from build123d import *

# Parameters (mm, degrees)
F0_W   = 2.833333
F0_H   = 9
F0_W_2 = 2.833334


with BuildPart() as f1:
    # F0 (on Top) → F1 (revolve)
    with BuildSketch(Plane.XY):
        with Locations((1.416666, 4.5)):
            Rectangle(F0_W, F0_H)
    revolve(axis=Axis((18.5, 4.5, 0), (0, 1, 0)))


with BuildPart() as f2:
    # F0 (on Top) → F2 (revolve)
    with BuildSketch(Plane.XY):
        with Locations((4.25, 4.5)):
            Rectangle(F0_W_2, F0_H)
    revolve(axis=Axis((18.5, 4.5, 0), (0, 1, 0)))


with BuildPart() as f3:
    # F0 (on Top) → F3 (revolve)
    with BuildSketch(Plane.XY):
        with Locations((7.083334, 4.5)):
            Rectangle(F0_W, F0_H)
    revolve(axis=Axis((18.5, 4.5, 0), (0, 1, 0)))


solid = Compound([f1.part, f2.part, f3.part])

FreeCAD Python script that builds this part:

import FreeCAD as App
import Part
import Sketcher

doc = App.newDocument("Part")
body = doc.addObject("PartDesign::Body", "Body")

sketch1 = doc.addObject("Sketcher::SketchObject", "Sketch")
body.addObject(sketch1)
sketch1.AttachmentSupport = (doc.XY_Plane, [""])
sketch1.MapMode = "FlatFace"
sketch1.addGeometry(Part.LineSegment(App.Vector(0, 9, 0), App.Vector(0, 0, 0)), False)
sketch1.addGeometry(Part.LineSegment(App.Vector(0, 0, 0), App.Vector(2.833333, 0, 0)), False)
sketch1.addGeometry(Part.LineSegment(App.Vector(2.833333, 0, 0), App.Vector(2.833333, 9, 0)), False)
sketch1.addGeometry(Part.LineSegment(App.Vector(2.833333, 9, 0), App.Vector(0, 9, 0)), False)
sketch1.addGeometry(Part.LineSegment(App.Vector(18.5, 0, 0), App.Vector(18.5, 9, 0)), True)
sketch1.addConstraint(Sketcher.Constraint("Coincident", 0, 2, 1, 1))
sketch1.addConstraint(Sketcher.Constraint("Coincident", 1, 2, 2, 1))
sketch1.addConstraint(Sketcher.Constraint("Coincident", 2, 2, 3, 1))
sketch1.addConstraint(Sketcher.Constraint("Coincident", 3, 2, 0, 1))
sketch1.addConstraint(Sketcher.Constraint("Vertical", 0))
sketch1.addConstraint(Sketcher.Constraint("Horizontal", 1))
sketch1.addConstraint(Sketcher.Constraint("Vertical", 2))
sketch1.addConstraint(Sketcher.Constraint("Horizontal", 3))
sketch1.addConstraint(Sketcher.Constraint("Vertical", 4))
sketch1.addConstraint(Sketcher.Constraint("Coincident", 0, 2, -1, 1))
sketch1.addConstraint(Sketcher.Constraint("PointOnObject", 4, 1, -1))
sketch1.addConstraint(Sketcher.Constraint("Horizontal", 3, 2, 4, 2))
sketch1.addConstraint(Sketcher.Constraint("DistanceY", 0, 2, 0, 1, 9.0))
sketch1.addConstraint(Sketcher.Constraint("DistanceX", -1, 1, 4, 1, 18.5))
sketch1.addConstraint(Sketcher.Constraint("DistanceX", 1, 1, 1, 2, 2.833333))
revolution = doc.addObject("PartDesign::Revolution", "Revolution")
body.addObject(revolution)
revolution.Profile = sketch1
revolution.ReferenceAxis = (sketch1, ["Axis0"])
revolution.Angle = 360
body2 = doc.addObject("PartDesign::Body", "Body001")

sketch2 = doc.addObject("Sketcher::SketchObject", "Sketch001")
body2.addObject(sketch2)
sketch2.AttachmentSupport = (doc.getObject("XY_Plane001"), [""])
sketch2.MapMode = "FlatFace"
sketch2.addGeometry(Part.LineSegment(App.Vector(2.833333, 9, 0), App.Vector(2.833333, 0, 0)), False)
sketch2.addGeometry(Part.LineSegment(App.Vector(2.833333, 0, 0), App.Vector(5.666667, 0, 0)), False)
sketch2.addGeometry(Part.LineSegment(App.Vector(5.666667, 0, 0), App.Vector(5.666667, 9, 0)), False)
sketch2.addGeometry(Part.LineSegment(App.Vector(5.666667, 9, 0), App.Vector(2.833333, 9, 0)), False)
sketch2.addGeometry(Part.LineSegment(App.Vector(18.5, 0, 0), App.Vector(18.5, 9, 0)), True)
sketch2.addConstraint(Sketcher.Constraint("Coincident", 0, 2, 1, 1))
sketch2.addConstraint(Sketcher.Constraint("Coincident", 1, 2, 2, 1))
sketch2.addConstraint(Sketcher.Constraint("Coincident", 2, 2, 3, 1))
sketch2.addConstraint(Sketcher.Constraint("Coincident", 3, 2, 0, 1))
sketch2.addConstraint(Sketcher.Constraint("Vertical", 0))
sketch2.addConstraint(Sketcher.Constraint("Horizontal", 1))
sketch2.addConstraint(Sketcher.Constraint("Vertical", 2))
sketch2.addConstraint(Sketcher.Constraint("Horizontal", 3))
sketch2.addConstraint(Sketcher.Constraint("Vertical", 4))
sketch2.addConstraint(Sketcher.Constraint("PointOnObject", 0, 2, -1))
sketch2.addConstraint(Sketcher.Constraint("PointOnObject", 4, 1, -1))
sketch2.addConstraint(Sketcher.Constraint("Horizontal", 3, 2, 4, 2))
sketch2.addConstraint(Sketcher.Constraint("DistanceY", 0, 2, 0, 1, 9.0))
sketch2.addConstraint(Sketcher.Constraint("DistanceX", -1, 1, 4, 1, 18.5))
sketch2.addConstraint(Sketcher.Constraint("DistanceX", 1, 1, 1, 2, 2.833334))
sketch2.addConstraint(Sketcher.Constraint("DistanceX", -1, 1, 0, 2, 2.833333))
revolution2 = doc.addObject("PartDesign::Revolution", "Revolution001")
body2.addObject(revolution2)
revolution2.Profile = sketch2
revolution2.ReferenceAxis = (sketch2, ["Axis0"])
revolution2.Angle = 360
body3 = doc.addObject("PartDesign::Body", "Body002")

sketch3 = doc.addObject("Sketcher::SketchObject", "Sketch002")
body3.addObject(sketch3)
sketch3.AttachmentSupport = (doc.getObject("XY_Plane002"), [""])
sketch3.MapMode = "FlatFace"
sketch3.addGeometry(Part.LineSegment(App.Vector(5.666667, 9, 0), App.Vector(5.666667, 0, 0)), False)
sketch3.addGeometry(Part.LineSegment(App.Vector(5.666667, 0, 0), App.Vector(8.500001, 0, 0)), False)
sketch3.addGeometry(Part.LineSegment(App.Vector(8.500001, 0, 0), App.Vector(8.500001, 9, 0)), False)
sketch3.addGeometry(Part.LineSegment(App.Vector(8.500001, 9, 0), App.Vector(5.666667, 9, 0)), False)
sketch3.addGeometry(Part.LineSegment(App.Vector(18.5, 0, 0), App.Vector(18.5, 9, 0)), True)
sketch3.addConstraint(Sketcher.Constraint("Coincident", 0, 2, 1, 1))
sketch3.addConstraint(Sketcher.Constraint("Coincident", 1, 2, 2, 1))
sketch3.addConstraint(Sketcher.Constraint("Coincident", 2, 2, 3, 1))
sketch3.addConstraint(Sketcher.Constraint("Coincident", 3, 2, 0, 1))
sketch3.addConstraint(Sketcher.Constraint("Vertical", 0))
sketch3.addConstraint(Sketcher.Constraint("Horizontal", 1))
sketch3.addConstraint(Sketcher.Constraint("Vertical", 2))
sketch3.addConstraint(Sketcher.Constraint("Horizontal", 3))
sketch3.addConstraint(Sketcher.Constraint("Vertical", 4))
sketch3.addConstraint(Sketcher.Constraint("PointOnObject", 0, 2, -1))
sketch3.addConstraint(Sketcher.Constraint("PointOnObject", 4, 1, -1))
sketch3.addConstraint(Sketcher.Constraint("Horizontal", 3, 2, 4, 2))
sketch3.addConstraint(Sketcher.Constraint("DistanceY", 0, 2, 0, 1, 9.0))
sketch3.addConstraint(Sketcher.Constraint("DistanceX", 1, 2, 4, 1, 9.999999))
sketch3.addConstraint(Sketcher.Constraint("DistanceX", -1, 1, 1, 2, 8.500001))
sketch3.addConstraint(Sketcher.Constraint("DistanceX", 1, 1, 1, 2, 2.833333))
revolution3 = doc.addObject("PartDesign::Revolution", "Revolution002")
body3.addObject(revolution3)
revolution3.Profile = sketch3
revolution3.ReferenceAxis = (sketch3, ["Axis0"])
revolution3.Angle = 360

doc.recompute()
